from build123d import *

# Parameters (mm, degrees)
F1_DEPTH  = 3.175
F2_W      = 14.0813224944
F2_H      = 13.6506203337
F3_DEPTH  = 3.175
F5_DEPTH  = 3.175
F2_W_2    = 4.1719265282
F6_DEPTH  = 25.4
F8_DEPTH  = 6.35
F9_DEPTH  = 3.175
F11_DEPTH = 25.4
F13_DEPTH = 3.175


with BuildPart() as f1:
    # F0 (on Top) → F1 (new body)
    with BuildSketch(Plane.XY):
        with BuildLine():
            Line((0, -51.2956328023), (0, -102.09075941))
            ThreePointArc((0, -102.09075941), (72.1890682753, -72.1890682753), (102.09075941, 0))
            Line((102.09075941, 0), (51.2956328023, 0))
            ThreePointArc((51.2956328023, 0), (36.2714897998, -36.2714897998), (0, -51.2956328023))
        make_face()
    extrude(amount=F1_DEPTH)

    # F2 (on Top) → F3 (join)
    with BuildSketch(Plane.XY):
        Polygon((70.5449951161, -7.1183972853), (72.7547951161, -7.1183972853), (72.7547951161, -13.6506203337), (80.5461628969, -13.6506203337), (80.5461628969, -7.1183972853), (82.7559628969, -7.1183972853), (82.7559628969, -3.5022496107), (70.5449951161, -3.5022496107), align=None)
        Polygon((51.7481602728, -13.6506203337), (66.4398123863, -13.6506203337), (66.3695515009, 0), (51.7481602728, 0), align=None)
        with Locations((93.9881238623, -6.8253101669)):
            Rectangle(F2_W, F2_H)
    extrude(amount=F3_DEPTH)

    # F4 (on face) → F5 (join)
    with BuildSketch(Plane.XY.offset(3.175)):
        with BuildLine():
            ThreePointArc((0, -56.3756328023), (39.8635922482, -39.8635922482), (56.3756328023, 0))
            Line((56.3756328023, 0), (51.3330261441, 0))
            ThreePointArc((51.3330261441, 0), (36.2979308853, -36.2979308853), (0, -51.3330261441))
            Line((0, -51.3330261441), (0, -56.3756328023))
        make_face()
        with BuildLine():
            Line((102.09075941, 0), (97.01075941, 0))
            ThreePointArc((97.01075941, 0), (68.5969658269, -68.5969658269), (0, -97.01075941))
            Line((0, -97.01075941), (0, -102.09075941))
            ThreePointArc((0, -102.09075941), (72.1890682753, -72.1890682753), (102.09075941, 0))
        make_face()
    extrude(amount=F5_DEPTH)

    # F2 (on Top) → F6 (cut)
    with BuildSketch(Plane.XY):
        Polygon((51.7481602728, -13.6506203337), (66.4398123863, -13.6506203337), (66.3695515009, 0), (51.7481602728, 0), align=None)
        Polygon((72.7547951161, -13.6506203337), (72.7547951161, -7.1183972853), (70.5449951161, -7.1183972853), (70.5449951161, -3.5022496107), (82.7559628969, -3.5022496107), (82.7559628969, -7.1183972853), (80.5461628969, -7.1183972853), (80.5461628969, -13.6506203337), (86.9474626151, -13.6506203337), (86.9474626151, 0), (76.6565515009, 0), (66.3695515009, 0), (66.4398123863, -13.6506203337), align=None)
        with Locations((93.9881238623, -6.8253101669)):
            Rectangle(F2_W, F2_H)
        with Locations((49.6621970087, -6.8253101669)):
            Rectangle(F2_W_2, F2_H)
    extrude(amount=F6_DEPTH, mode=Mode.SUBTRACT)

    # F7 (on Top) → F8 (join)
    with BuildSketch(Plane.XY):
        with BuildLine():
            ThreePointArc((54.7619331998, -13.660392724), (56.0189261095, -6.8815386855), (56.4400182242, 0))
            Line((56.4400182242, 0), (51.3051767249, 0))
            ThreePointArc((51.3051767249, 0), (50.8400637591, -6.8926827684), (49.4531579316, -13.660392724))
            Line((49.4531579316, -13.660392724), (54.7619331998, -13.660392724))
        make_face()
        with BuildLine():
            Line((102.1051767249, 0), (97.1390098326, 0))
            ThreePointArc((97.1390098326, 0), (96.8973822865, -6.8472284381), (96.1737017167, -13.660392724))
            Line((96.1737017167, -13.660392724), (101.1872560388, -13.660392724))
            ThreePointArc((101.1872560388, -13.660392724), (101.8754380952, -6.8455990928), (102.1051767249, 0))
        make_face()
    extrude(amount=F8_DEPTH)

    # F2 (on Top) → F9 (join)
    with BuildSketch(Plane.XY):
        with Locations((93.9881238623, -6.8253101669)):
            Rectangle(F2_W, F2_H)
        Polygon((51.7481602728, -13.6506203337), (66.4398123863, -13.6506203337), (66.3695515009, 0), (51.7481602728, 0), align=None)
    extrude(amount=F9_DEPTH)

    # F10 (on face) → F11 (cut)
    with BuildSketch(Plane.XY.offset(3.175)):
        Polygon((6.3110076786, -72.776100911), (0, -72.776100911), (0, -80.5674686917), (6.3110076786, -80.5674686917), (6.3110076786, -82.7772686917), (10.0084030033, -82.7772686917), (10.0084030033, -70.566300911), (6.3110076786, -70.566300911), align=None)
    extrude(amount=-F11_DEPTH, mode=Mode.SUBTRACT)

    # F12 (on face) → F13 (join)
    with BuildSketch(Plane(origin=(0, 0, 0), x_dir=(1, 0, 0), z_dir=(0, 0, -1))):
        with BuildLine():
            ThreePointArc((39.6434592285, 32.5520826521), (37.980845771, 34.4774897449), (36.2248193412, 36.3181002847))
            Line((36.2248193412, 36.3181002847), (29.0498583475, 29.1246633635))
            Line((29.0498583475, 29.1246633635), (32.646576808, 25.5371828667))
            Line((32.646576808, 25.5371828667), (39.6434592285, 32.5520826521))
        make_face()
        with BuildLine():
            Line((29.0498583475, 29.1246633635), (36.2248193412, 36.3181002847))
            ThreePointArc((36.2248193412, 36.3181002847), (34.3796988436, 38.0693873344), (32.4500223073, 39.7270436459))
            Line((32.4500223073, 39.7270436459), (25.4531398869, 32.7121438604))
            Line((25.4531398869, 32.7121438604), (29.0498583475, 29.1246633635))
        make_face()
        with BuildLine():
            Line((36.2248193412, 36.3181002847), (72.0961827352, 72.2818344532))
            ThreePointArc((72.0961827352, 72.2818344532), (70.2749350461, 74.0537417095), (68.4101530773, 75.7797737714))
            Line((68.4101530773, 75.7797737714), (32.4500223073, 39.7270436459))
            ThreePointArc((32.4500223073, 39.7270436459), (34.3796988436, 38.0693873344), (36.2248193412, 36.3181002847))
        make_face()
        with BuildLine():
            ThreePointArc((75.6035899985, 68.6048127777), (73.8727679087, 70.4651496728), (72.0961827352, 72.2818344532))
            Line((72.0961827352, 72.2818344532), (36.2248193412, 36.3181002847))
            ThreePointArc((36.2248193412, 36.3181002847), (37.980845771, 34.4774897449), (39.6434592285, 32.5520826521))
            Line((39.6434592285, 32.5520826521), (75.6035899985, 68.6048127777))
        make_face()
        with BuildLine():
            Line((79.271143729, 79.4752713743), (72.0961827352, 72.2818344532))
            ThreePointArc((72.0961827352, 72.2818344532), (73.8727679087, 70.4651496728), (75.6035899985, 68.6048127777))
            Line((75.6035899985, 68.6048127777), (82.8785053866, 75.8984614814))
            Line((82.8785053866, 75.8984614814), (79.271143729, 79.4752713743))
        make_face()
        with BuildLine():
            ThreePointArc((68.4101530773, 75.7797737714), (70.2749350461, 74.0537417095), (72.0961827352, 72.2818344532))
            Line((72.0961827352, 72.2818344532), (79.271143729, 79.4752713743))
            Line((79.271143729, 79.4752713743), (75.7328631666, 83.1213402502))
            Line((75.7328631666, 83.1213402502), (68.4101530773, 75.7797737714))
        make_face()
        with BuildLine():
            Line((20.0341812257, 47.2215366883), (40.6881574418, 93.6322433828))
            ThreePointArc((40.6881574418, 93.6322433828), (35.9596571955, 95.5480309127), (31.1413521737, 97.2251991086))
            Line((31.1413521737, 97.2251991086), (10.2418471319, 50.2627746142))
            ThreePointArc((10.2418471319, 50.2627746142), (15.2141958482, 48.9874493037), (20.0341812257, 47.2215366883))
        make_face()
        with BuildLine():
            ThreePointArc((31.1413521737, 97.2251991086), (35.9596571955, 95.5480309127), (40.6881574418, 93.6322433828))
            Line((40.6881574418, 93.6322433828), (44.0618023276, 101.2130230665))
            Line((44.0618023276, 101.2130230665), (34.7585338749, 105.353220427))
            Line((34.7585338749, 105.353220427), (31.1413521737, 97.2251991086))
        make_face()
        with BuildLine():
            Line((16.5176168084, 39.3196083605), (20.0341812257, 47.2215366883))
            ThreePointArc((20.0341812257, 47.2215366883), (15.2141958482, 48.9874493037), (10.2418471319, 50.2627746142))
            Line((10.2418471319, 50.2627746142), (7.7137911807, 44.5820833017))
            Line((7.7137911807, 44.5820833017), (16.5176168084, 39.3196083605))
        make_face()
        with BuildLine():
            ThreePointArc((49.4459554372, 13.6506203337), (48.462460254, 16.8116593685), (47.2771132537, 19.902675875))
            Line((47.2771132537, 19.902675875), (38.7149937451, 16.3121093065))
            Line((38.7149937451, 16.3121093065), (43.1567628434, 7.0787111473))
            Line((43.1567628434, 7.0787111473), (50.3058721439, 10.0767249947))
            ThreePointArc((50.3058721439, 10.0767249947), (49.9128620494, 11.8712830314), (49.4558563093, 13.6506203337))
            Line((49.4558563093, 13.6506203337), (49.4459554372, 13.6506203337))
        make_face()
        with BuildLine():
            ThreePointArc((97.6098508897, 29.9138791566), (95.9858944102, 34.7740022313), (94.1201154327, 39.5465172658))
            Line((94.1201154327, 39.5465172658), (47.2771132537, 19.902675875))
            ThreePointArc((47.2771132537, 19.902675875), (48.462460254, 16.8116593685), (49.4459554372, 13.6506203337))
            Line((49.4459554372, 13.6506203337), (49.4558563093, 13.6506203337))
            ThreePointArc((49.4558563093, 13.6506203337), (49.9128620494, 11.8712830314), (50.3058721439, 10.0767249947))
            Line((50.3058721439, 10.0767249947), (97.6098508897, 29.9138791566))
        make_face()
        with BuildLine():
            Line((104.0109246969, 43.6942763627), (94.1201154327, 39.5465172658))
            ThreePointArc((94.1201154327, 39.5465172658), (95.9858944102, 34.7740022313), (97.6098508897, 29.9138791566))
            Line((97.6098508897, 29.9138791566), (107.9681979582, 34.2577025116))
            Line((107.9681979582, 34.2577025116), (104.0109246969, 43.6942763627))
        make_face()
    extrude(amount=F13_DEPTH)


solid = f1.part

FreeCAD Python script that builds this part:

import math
import FreeCAD as App
import Part
import Sketcher
Q = App.Units.Quantity

doc = App.newDocument("Part")
params = doc.addObject("Spreadsheet::Sheet", "Params")
for row, (alias, value) in enumerate([
    ("pad1_length", "0.125 in"),
    ("sketch2_width", "0.087 in"),
    ("pad2_length", "0.125 in"),
    ("sketch3_width", "0.2 in"),
    ("pad3_length", "0.125 in"),
    ("sketch4_width", "0.087 in"),
    ("pocket1_length", "1 in"),
    ("pad4_length", "0.25 in"),
    ("pad5_length", "0.125 in"),
    ("sketch7_height", "0.087 in"),
    ("pocket2_length", "1 in"),
    ("sketch8_length", "0.4 in"),
    ("pad6_length", "0.125 in"),
], start=1):
    params.set(f"A{row}", alias)
    params.set(f"B{row}", "=" + value)
    params.setAlias(f"B{row}", alias)

body = doc.addObject("PartDesign::Body", "Body")

sketch1 = body.newObject("Sketcher::SketchObject", "Sketch")
sketch1.AttachmentSupport = (doc.getObject("XY_Plane"), [""])
sketch1.MapMode = "FlatFace"
sketch1.addGeometry([
    Part.LineSegment(App.Vector(0, -51.295633, 0), App.Vector(0, -102.090759, 0)),
    Part.ArcOfCircle(Part.Circle(App.Vector(0, 0, 0), App.Vector(0, 0, 1), 102.090759), math.radians(-90), math.radians(0)),
    Part.LineSegment(App.Vector(102.090759, 0, 0), App.Vector(51.295633, 0, 0)),
    Part.ArcOfCircle(Part.Circle(App.Vector(0, 0, 0), App.Vector(0, 0, 1), 51.295633), math.radians(-90), math.radians(0)),
], False)
sketch1.addConstraint([
    Sketcher.Constraint("Coincident", 0, 2, 1, 1),
    Sketcher.Constraint("Coincident", 1, 2, 2, 1),
    Sketcher.Constraint("Coincident", 2, 2, 3, 2),
    Sketcher.Constraint("Coincident", 3, 1, 0, 1),
    Sketcher.Constraint("Vertical", 0),
    Sketcher.Constraint("Horizontal", 2),
    Sketcher.Constraint("Coincident", 1, 3, -1, 1),
    Sketcher.Constraint("Coincident", 3, 3, -1, 1),
    Sketcher.Constraint("PointOnObject", 0, 2, -2),
    Sketcher.Constraint("PointOnObject", 1, 2, -1),
    Sketcher.Constraint("Radius", 1, 102.090759),
    Sketcher.Constraint("Radius", 3, 51.295633),
])
pad1 = body.newObject("PartDesign::Pad", "Pad")
pad1.Profile = sketch1
pad1.setExpression("Length", "Params.pad1_length")

sketch2 = body.newObject("Sketcher::SketchObject", "Sketch001")
sketch2.AttachmentSupport = (doc.getObject("XY_Plane"), [""])
sketch2.MapMode = "FlatFace"
sketch2.addGeometry([
    Part.LineSegment(App.Vector(70.544995, -7.118397, 0), App.Vector(72.754795, -7.118397, 0)),
    Part.LineSegment(App.Vector(72.754795, -7.118397, 0), App.Vector(72.754795, -13.65062, 0)),
    Part.LineSegment(App.Vector(72.754795, -13.65062, 0), App.Vector(80.546163, -13.65062, 0)),
    Part.LineSegment(App.Vector(80.546163, -13.65062, 0), App.Vector(80.546163, -7.118397, 0)),
    Part.LineSegment(App.Vector(80.546163, -7.118397, 0), App.Vector(82.755963, -7.118397, 0)),
    Part.LineSegment(App.Vector(82.755963, -7.118397, 0), App.Vector(82.755963, -3.50225, 0)),
    Part.LineSegment(App.Vector(82.755963, -3.50225, 0), App.Vector(70.544995, -3.50225, 0)),
    Part.LineSegment(App.Vector(70.544995, -3.50225, 0), App.Vector(70.544995, -7.118397, 0)),
    Part.LineSegment(App.Vector(51.74816, -13.65062, 0), App.Vector(66.439812, -13.65062, 0)),
    Part.LineSegment(App.Vector(66.439812, -13.65062, 0), App.Vector(66.369552, 0, 0)),
    Part.LineSegment(App.Vector(66.369552, 0, 0), App.Vector(51.74816, 0, 0)),
    Part.LineSegment(App.Vector(51.74816, 0, 0), App.Vector(51.74816, -13.65062, 0)),
    Part.LineSegment(App.Vector(86.947463, 0, 0), App.Vector(86.947463, -13.65062, 0)),
    Part.LineSegment(App.Vector(86.947463, -13.65062, 0), App.Vector(101.028785, -13.65062, 0)),
    Part.LineSegment(App.Vector(101.028785, -13.65062, 0), App.Vector(101.028785, 0, 0)),
    Part.LineSegment(App.Vector(101.028785, 0, 0), App.Vector(86.947463, 0, 0)),
], False)
sketch2.addConstraint([
    Sketcher.Constraint("Coincident", 0, 2, 1, 1),
    Sketcher.Constraint("Coincident", 1, 2, 2, 1),
    Sketcher.Constraint("Coincident", 2, 2, 3, 1),
    Sketcher.Constraint("Coincident", 3, 2, 4, 1),
    Sketcher.Constraint("Coincident", 4, 2, 5, 1),
    Sketcher.Constraint("Coincident", 5, 2, 6, 1),
    Sketcher.Constraint("Coincident", 6, 2, 7, 1),
    Sketcher.Constraint("Coincident", 7, 2, 0, 1),
    Sketcher.Constraint("Coincident", 8, 2, 9, 1),
    Sketcher.Constraint("Coincident", 9, 2, 10, 1),
    Sketcher.Constraint("Coincident", 10, 2, 11, 1),
    Sketcher.Constraint("Coincident", 11, 2, 8, 1),
    Sketcher.Constraint("Coincident", 12, 2, 13, 1),
    Sketcher.Constraint("Coincident", 13, 2, 14, 1),
    Sketcher.Constraint("Coincident", 14, 2, 15, 1),
    Sketcher.Constraint("Coincident", 15, 2, 12, 1),
    Sketcher.Constraint("Horizontal", 0),
    Sketcher.Constraint("Vertical", 1),
    Sketcher.Constraint("Horizontal", 2),
    Sketcher.Constraint("Vertical", 3),
    Sketcher.Constraint("Horizontal", 4),
    Sketcher.Constraint("Vertical", 5),
    Sketcher.Constraint("Horizontal", 6),
    Sketcher.Constraint("Vertical", 7),
    Sketcher.Constraint("Horizontal", 8),
    Sketcher.Constraint("Horizontal", 10),
    Sketcher.Constraint("Vertical", 11),
    Sketcher.Constraint("Vertical", 12),
    Sketcher.Constraint("Horizontal", 13),
    Sketcher.Constraint("Vertical", 14),
    Sketcher.Constraint("Horizontal", 15),
    Sketcher.Constraint("PointOnObject", 9, 2, -1),
    Sketcher.Constraint("PointOnObject", 14, 2, -1),
    Sketcher.Constraint("Horizontal", 0, 2, 3, 2),
    Sketcher.Constraint("Horizontal", 2, 2, 8, 2),
    Sketcher.Constraint("Horizontal", 11, 2, 12, 2),
    Sketcher.Constraint("Equal", 0, 4),
    Sketcher.Constraint("DistanceX", 0, 1, 0, 2, Q("0.087 in")),
    Sketcher.Constraint("Distance", 9, 13.650801),
    Sketcher.Constraint("DistanceX", 10, 2, 10, 1, 14.621391),
    Sketcher.Constraint("DistanceY", 11, 2, 11, 1, 13.65062),
    Sketcher.Constraint("DistanceX", 2, 2, 12, 2, 6.4013),
    Sketcher.Constraint("DistanceX", 2, 1, 2, 2, 7.791368),
    Sketcher.Constraint("DistanceX", 13, 1, 13, 2, 14.081322),
    Sketcher.Constraint("DistanceY", 1, 2, 1, 1, 6.532223),
    Sketcher.Constraint("DistanceY", 5, 1, 5, 2, 3.616148),
    Sketcher.Constraint("DistanceX", -1, 1, 9, 2, 66.369552),
    Sketcher.Constraint("DistanceX", 8, 2, 2, 2, 14.106351),
])
sketch2.setExpression("Constraints[37]", "Params.sketch2_width")
pad2 = body.newObject("PartDesign::Pad", "Pad001")
pad2.Profile = sketch2
pad2.setExpression("Length", "Params.pad2_length")

sketch3 = body.newObject("Sketcher::SketchObject", "Sketch002")
sketch3.AttachmentSupport = (doc.getObject("XY_Plane"), [""])
sketch3.MapMode = "FlatFace"
sketch3.AttachmentOffset = App.Placement(App.Vector(0, 0, 0.125 * 25.4), App.Rotation())
sketch3.addGeometry([
    Part.ArcOfCircle(Part.Circle(App.Vector(0, 0, 0), App.Vector(0, 0, 1), 56.375633), math.radians(-90), math.radians(0)),
    Part.LineSegment(App.Vector(56.375633, 0, 0), App.Vector(51.333026, 0, 0)),
    Part.ArcOfCircle(Part.Circle(App.Vector(0, 0, 0), App.Vector(0, 0, 1), 51.333026), math.radians(-90), math.radians(0)),
    Part.LineSegment(App.Vector(0, -51.333026, 0), App.Vector(0, -56.375633, 0)),
    Part.LineSegment(App.Vector(102.090759, 0, 0), App.Vector(97.010759, 0, 0)),
    Part.ArcOfCircle(Part.Circle(App.Vector(0, 0, 0), App.Vector(0, 0, 1), 97.010759), math.radians(-90), math.radians(0)),
    Part.LineSegment(App.Vector(0, -97.010759, 0), App.Vector(0, -102.090759, 0)),
    Part.ArcOfCircle(Part.Circle(App.Vector(0, 0, 0), App.Vector(0, 0, 1), 102.090759), math.radians(-90), math.radians(0)),
], False)
sketch3.addConstraint([
    Sketcher.Constraint("Coincident", 0, 2, 1, 1),
    Sketcher.Constraint("Coincident", 1, 2, 2, 2),
    Sketcher.Constraint("Coincident", 2, 1, 3, 1),
    Sketcher.Constraint("Coincident", 3, 2, 0, 1),
    Sketcher.Constraint("Coincident", 4, 2, 5, 2),
    Sketcher.Constraint("Coincident", 5, 1, 6, 1),
    Sketcher.Constraint("Coincident", 6, 2, 7, 1),
    Sketcher.Constraint("Coincident", 7, 2, 4, 1),
    Sketcher.Constraint("Horizontal", 1),
    Sketcher.Constraint("Vertical", 3),
    Sketcher.Constraint("Horizontal", 4),
    Sketcher.Constraint("Vertical", 6),
    Sketcher.Constraint("Coincident", 0, 3, -1, 1),
    Sketcher.Constraint("Coincident", 2, 3, -1, 1),
    Sketcher.Constraint("Coincident", 5, 3, -1, 1),
    Sketcher.Constraint("Coincident", 7, 3, -1, 1),
    Sketcher.Constraint("PointOnObject", 0, 2, -1),
    Sketcher.Constraint("PointOnObject", 2, 1, -2),
    Sketcher.Constraint("PointOnObject", 4, 2, -1),
    Sketcher.Constraint("PointOnObject", 5, 1, -2),
    Sketcher.Constraint("DistanceX", 4, 2, 4, 1, Q("0.2 in")),
    Sketcher.Constraint("Radius", 5, 97.010759),
    Sketcher.Constraint("Radius", 0, 56.375633),
    Sketcher.Constraint("Radius", 2, 51.333026),
])
sketch3.setExpression("Constraints[20]", "Params.sketch3_width")
pad3 = body.newObject("PartDesign::Pad", "Pad002")
pad3.Profile = sketch3
pad3.setExpression("Length", "Params.pad3_length")

sketch4 = body.newObject("Sketcher::SketchObject", "Sketch003")
sketch4.AttachmentSupport = (doc.getObject("XY_Plane"), [""])
sketch4.MapMode = "FlatFace"
sketch4.addGeometry([
    Part.LineSegment(App.Vector(51.74816, -13.65062, 0), App.Vector(72.754795, -13.65062, 0)),
    Part.LineSegment(App.Vector(72.754795, -13.65062, 0), App.Vector(72.754795, -7.118397, 0)),
    Part.LineSegment(App.Vector(72.754795, -7.118397, 0), App.Vector(70.544995, -7.118397, 0)),
    Part.LineSegment(App.Vector(70.544995, -7.118397, 0), App.Vector(70.544995, -3.50225, 0)),
    Part.LineSegment(App.Vector(70.544995, -3.50225, 0), App.Vector(82.755963, -3.50225, 0)),
    Part.LineSegment(App.Vector(82.755963, -3.50225, 0), App.Vector(82.755963, -7.118397, 0)),
    Part.LineSegment(App.Vector(82.755963, -7.118397, 0), App.Vector(80.546163, -7.118397, 0)),
    Part.LineSegment(App.Vector(80.546163, -7.118397, 0), App.Vector(80.546163, -13.65062, 0)),
    Part.LineSegment(App.Vector(80.546163, -13.65062, 0), App.Vector(86.947463, -13.65062, 0)),
    Part.LineSegment(App.Vector(86.947463, -13.65062, 0), App.Vector(101.028785, -13.65062, 0)),
    Part.LineSegment(App.Vector(101.028785, -13.65062, 0), App.Vector(101.028785, 0, 0)),
    Part.LineSegment(App.Vector(101.028785, 0, 0), App.Vector(86.947463, 0, 0)),
    Part.LineSegment(App.Vector(86.947463, 0, 0), App.Vector(51.74816, 0, 0)),
    Part.LineSegment(App.Vector(51.74816, 0, 0), App.Vector(47.576234, 0, 0)),
    Part.LineSegment(App.Vector(47.576234, 0, 0), App.Vector(47.576234, -13.65062, 0)),
    Part.LineSegment(App.Vector(47.576234, -13.65062, 0), App.Vector(51.74816, -13.65062, 0)),
], False)
sketch4.addConstraint([
    Sketcher.Constraint("Coincident", 0, 2, 1, 1),
    Sketcher.Constraint("Coincident", 1, 2, 2, 1),
    Sketcher.Constraint("Coincident", 2, 2, 3, 1),
    Sketcher.Constraint("Coincident", 3, 2, 4, 1),
    Sketcher.Constraint("Coincident", 4, 2, 5, 1),
    Sketcher.Constraint("Coincident", 5, 2, 6, 1),
    Sketcher.Constraint("Coincident", 6, 2, 7, 1),
    Sketcher.Constraint("Coincident", 7, 2, 8, 1),
    Sketcher.Constraint("Coincident", 8, 2, 9, 1),
    Sketcher.Constraint("Coincident", 9, 2, 10, 1),
    Sketcher.Constraint("Coincident", 10, 2, 11, 1),
    Sketcher.Constraint("Coincident", 11, 2, 12, 1),
    Sketcher.Constraint("Coincident", 12, 2, 13, 1),
    Sketcher.Constraint("Coincident", 13, 2, 14, 1),
    Sketcher.Constraint("Coincident", 14, 2, 15, 1),
    Sketcher.Constraint("Coincident", 15, 2, 0, 1),
    Sketcher.Constraint("Horizontal", 0),
    Sketcher.Constraint("Vertical", 1),
    Sketcher.Constraint("Horizontal", 2),
    Sketcher.Constraint("Vertical", 3),
    Sketcher.Constraint("Horizontal", 4),
    Sketcher.Constraint("Vertical", 5),
    Sketcher.Constraint("Horizontal", 6),
    Sketcher.Constraint("Vertical", 7),
    Sketcher.Constraint("Horizontal", 8),
    Sketcher.Constraint("Horizontal", 9),
    Sketcher.Constraint("Vertical", 10),
    Sketcher.Constraint("Horizontal", 11),
    Sketcher.Constraint("Horizontal", 12),
    Sketcher.Constraint("Horizontal", 13),
    Sketcher.Constraint("Vertical", 14),
    Sketcher.Constraint("Horizontal", 15),
    Sketcher.Constraint("PointOnObject", 10, 2, -1),
    Sketcher.Constraint("Horizontal", 2, 2, 5, 2),
    Sketcher.Constraint("Horizontal", 0, 2, 7, 2),
    Sketcher.Constraint("Vertical", 8, 2, 11, 2),
    Sketcher.Constraint("Vertical", 12, 2, 15, 2),
    Sketcher.Constraint("Equal", 2, 6),
    Sketcher.Constraint("DistanceX", 2, 2, 2, 1, Q("0.087 in")),
    Sketcher.Constraint("DistanceX", 8, 1, 8, 2, 6.4013),
    Sketcher.Constraint("DistanceY", 10, 1, 10, 2, 13.65062),
    Sketcher.Constraint("DistanceX", 0, 1, 0, 2, 21.006635),
    Sketcher.Constraint("DistanceX", 4, 1, 4, 2, 12.210968),
    Sketcher.Constraint("DistanceX", 9, 1, 9, 2, 14.081322),
    Sketcher.Constraint("DistanceX", 13, 2, 13, 1, 4.171927),
    Sketcher.Constraint("DistanceY", 1, 1, 1, 2, 6.532223),
    Sketcher.Constraint("DistanceY", 3, 1, 3, 2, 3.616148),
    Sketcher.Constraint("DistanceX", -1, 1, 12, 2, 51.74816),
])
sketch4.setExpression("Constraints[38]", "Params.sketch4_width")
pocket1 = body.newObject("PartDesign::Pocket", "Pocket")
pocket1.Profile = sketch4
pocket1.setExpression("Length", "Params.pocket1_length")
pocket1.Reversed = True

sketch5 = body.newObject("Sketcher::SketchObject", "Sketch004")
sketch5.AttachmentSupport = (doc.getObject("XY_Plane"), [""])
sketch5.MapMode = "FlatFace"
sketch5.addGeometry([
    Part.ArcOfCircle(Part.Circle(App.Vector(0, 0, 0), App.Vector(0, 0, 1), 56.440018), math.radians(-14.006609), math.radians(0)),
    Part.LineSegment(App.Vector(56.440018, 0, 0), App.Vector(51.305177, 0, 0)),
    Part.ArcOfCircle(Part.Circle(App.Vector(0, 0, 0), App.Vector(0, 0, 1), 51.305177), math.radians(-15.441692), math.radians(0)),
    Part.LineSegment(App.Vector(49.453158, -13.660393, 0), App.Vector(54.761933, -13.660393, 0)),
    Part.LineSegment(App.Vector(102.105177, 0, 0), App.Vector(97.13901, 0, 0)),
    Part.ArcOfCircle(Part.Circle(App.Vector(0, 0, 0), App.Vector(0, 0, 1), 97.13901), math.radians(-8.084145), math.radians(0)),
    Part.LineSegment(App.Vector(96.173702, -13.660393, 0), App.Vector(101.187256, -13.660393, 0)),
    Part.ArcOfCircle(Part.Circle(App.Vector(0, 0, 0), App.Vector(0, 0, 1), 102.105177), math.radians(-7.688511), math.radians(0)),
], False)
sketch5.addConstraint([
    Sketcher.Constraint("Coincident", 0, 2, 1, 1),
    Sketcher.Constraint("Coincident", 1, 2, 2, 2),
    Sketcher.Constraint("Coincident", 2, 1, 3, 1),
    Sketcher.Constraint("Coincident", 3, 2, 0, 1),
    Sketcher.Constraint("Coincident", 4, 2, 5, 2),
    Sketcher.Constraint("Coincident", 5, 1, 6, 1),
    Sketcher.Constraint("Coincident", 6, 2, 7, 1),
    Sketcher.Constraint("Coincident", 7, 2, 4, 1),
    Sketcher.Constraint("Horizontal", 1),
    Sketcher.Constraint("Horizontal", 3),
    Sketcher.Constraint("Horizontal", 4),
    Sketcher.Constraint("Horizontal", 6),
    Sketcher.Constraint("Coincident", 0, 3, -1, 1),
    Sketcher.Constraint("Coincident", 2, 3, -1, 1),
    Sketcher.Constraint("Coincident", 5, 3, -1, 1),
    Sketcher.Constraint("Coincident", 7, 3, -1, 1),
    Sketcher.Constraint("PointOnObject", 0, 2, -1),
    Sketcher.Constraint("PointOnObject", 4, 2, -1),
    Sketcher.Constraint("Horizontal", 3, 2, 5, 1),
    Sketcher.Constraint("Radius", 0, 56.440018),
    Sketcher.Constraint("Radius", 5, 97.13901),
    Sketcher.Constraint("Radius", 2, 51.305177),
    Sketcher.Constraint("Radius", 7, 102.105177),
    Sketcher.Constraint("DistanceX", -1, 1, 5, 1, 96.173702),
])
pad4 = body.newObject("PartDesign::Pad", "Pad003")
pad4.Profile = sketch5
pad4.setExpression("Length", "Params.pad4_length")

sketch6 = body.newObject("Sketcher::SketchObject", "Sketch005")
sketch6.AttachmentSupport = (doc.getObject("XY_Plane"), [""])
sketch6.MapMode = "FlatFace"
sketch6.addGeometry([
    Part.LineSegment(App.Vector(86.947463, 0, 0), App.Vector(86.947463, -13.65062, 0)),
    Part.LineSegment(App.Vector(86.947463, -13.65062, 0), App.Vector(101.028785, -13.65062, 0)),
    Part.LineSegment(App.Vector(101.028785, -13.65062, 0), App.Vector(101.028785, 0, 0)),
    Part.LineSegment(App.Vector(101.028785, 0, 0), App.Vector(86.947463, 0, 0)),
    Part.LineSegment(App.Vector(51.74816, -13.65062, 0), App.Vector(66.439812, -13.65062, 0)),
    Part.LineSegment(App.Vector(66.439812, -13.65062, 0), App.Vector(66.369552, 0, 0)),
    Part.LineSegment(App.Vector(66.369552, 0, 0), App.Vector(51.74816, 0, 0)),
    Part.LineSegment(App.Vector(51.74816, 0, 0), App.Vector(51.74816, -13.65062, 0)),
], False)
sketch6.addConstraint([
    Sketcher.Constraint("Coincident", 0, 2, 1, 1),
    Sketcher.Constraint("Coincident", 1, 2, 2, 1),
    Sketcher.Constraint("Coincident", 2, 2, 3, 1),
    Sketcher.Constraint("Coincident", 3, 2, 0, 1),
    Sketcher.Constraint("Coincident", 4, 2, 5, 1),
    Sketcher.Constraint("Coincident", 5, 2, 6, 1),
    Sketcher.Constraint("Coincident", 6, 2, 7, 1),
    Sketcher.Constraint("Coincident", 7, 2, 4, 1),
    Sketcher.Constraint("Vertical", 0),
    Sketcher.Constraint("Horizontal", 1),
    Sketcher.Constraint("Vertical", 2),
    Sketcher.Constraint("Horizontal", 3),
    Sketcher.Constraint("Horizontal", 4),
    Sketcher.Constraint("Horizontal", 6),
    Sketcher.Constraint("Vertical", 7),
    Sketcher.Constraint("PointOnObject", 2, 2, -1),
    Sketcher.Constraint("PointOnObject", 5, 2, -1),
    Sketcher.Constraint("Horizontal", 1, 2, 4, 2),
    Sketcher.Constraint("Distance", 5, 13.650801),
    Sketcher.Constraint("DistanceX", 6, 2, 6, 1, 14.621391),
    Sketcher.Constraint("DistanceY", 0, 2, 0, 1, 13.65062),
    Sketcher.Constraint("DistanceX", 1, 1, 1, 2, 14.081322),
    Sketcher.Constraint("DistanceX", -1, 1, 5, 2, 66.369552),
    Sketcher.Constraint("DistanceX", 4, 2, 0, 2, 20.50765),
])
pad5 = body.newObject("PartDesign::Pad", "Pad004")
pad5.Profile = sketch6
pad5.setExpression("Length", "Params.pad5_length")

sketch7 = body.newObject("Sketcher::SketchObject", "Sketch006")
sketch7.AttachmentSupport = (doc.getObject("XY_Plane"), [""])
sketch7.MapMode = "FlatFace"
sketch7.AttachmentOffset = App.Placement(App.Vector(0, 0, 0.125 * 25.4), App.Rotation())
sketch7.addGeometry([
    Part.LineSegment(App.Vector(6.311008, -72.776101, 0), App.Vector(0, -72.776101, 0)),
    Part.LineSegment(App.Vector(0, -72.776101, 0), App.Vector(0, -80.567469, 0)),
    Part.LineSegment(App.Vector(0, -80.567469, 0), App.Vector(6.311008, -80.567469, 0)),
    Part.LineSegment(App.Vector(6.311008, -80.567469, 0), App.Vector(6.311008, -82.777269, 0)),
    Part.LineSegment(App.Vector(6.311008, -82.777269, 0), App.Vector(10.008403, -82.777269, 0)),
    Part.LineSegment(App.Vector(10.008403, -82.777269, 0), App.Vector(10.008403, -70.566301, 0)),
    Part.LineSegment(App.Vector(10.008403, -70.566301, 0), App.Vector(6.311008, -70.566301, 0)),
    Part.LineSegment(App.Vector(6.311008, -70.566301, 0), App.Vector(6.311008, -72.776101, 0)),
], False)
sketch7.addConstraint([
    Sketcher.Constraint("Coincident", 0, 2, 1, 1),
    Sketcher.Constraint("Coincident", 1, 2, 2, 1),
    Sketcher.Constraint("Coincident", 2, 2, 3, 1),
    Sketcher.Constraint("Coincident", 3, 2, 4, 1),
    Sketcher.Constraint("Coincident", 4, 2, 5, 1),
    Sketcher.Constraint("Coincident", 5, 2, 6, 1),
    Sketcher.Constraint("Coincident", 6, 2, 7, 1),
    Sketcher.Constraint("Coincident", 7, 2, 0, 1),
    Sketcher.Constraint("Horizontal", 0),
    Sketcher.Constraint("Vertical", 1),
    Sketcher.Constraint("Horizontal", 2),
    Sketcher.Constraint("Vertical", 3),
    Sketcher.Constraint("Horizontal", 4),
    Sketcher.Constraint("Vertical", 5),
    Sketcher.Constraint("Horizontal", 6),
    Sketcher.Constraint("Vertical", 7),
    Sketcher.Constraint("PointOnObject", 0, 2, -2),
    Sketcher.Constraint("Vertical", 3, 2, 6, 2),
    Sketcher.Constraint("Equal", 3, 7),
    Sketcher.Constraint("DistanceY", 3, 2, 3, 1, Q("0.087 in")),
    Sketcher.Constraint("DistanceY", 0, 2, -1, 1, 72.776101),
    Sketcher.Constraint("DistanceX", 0, 2, 0, 1, 6.311008),
    Sketcher.Constraint("DistanceX", 4, 1, 4, 2, 3.697395),
    Sketcher.Constraint("DistanceY", 1, 2, 1, 1, 7.791368),
])
sketch7.setExpression("Constraints[19]", "Params.sketch7_height")
pocket2 = body.newObject("PartDesign::Pocket", "Pocket001")
pocket2.Profile = sketch7
pocket2.setExpression("Length", "Params.pocket2_length")

sketch8 = body.newObject("Sketcher::SketchObject", "Sketch007")
sketch8.AttachmentSupport = (doc.getObject("XY_Plane"), [""])
sketch8.MapMode = "FlatFace"
sketch8.addGeometry([
    Part.LineSegment(App.Vector(68.410153, -75.779774, 0), App.Vector(32.450022, -39.727044, 0)),
    Part.LineSegment(App.Vector(32.450022, -39.727044, 0), App.Vector(25.45314, -32.712144, 0)),
    Part.LineSegment(App.Vector(25.45314, -32.712144, 0), App.Vector(32.646577, -25.537183, 0)),
    Part.LineSegment(App.Vector(32.646577, -25.537183, 0), App.Vector(39.643459, -32.552083, 0)),
    Part.LineSegment(App.Vector(39.643459, -32.552083, 0), App.Vector(75.60359, -68.604813, 0)),
    Part.LineSegment(App.Vector(75.60359, -68.604813, 0), App.Vector(82.878505, -75.898461, 0)),
    Part.LineSegment(App.Vector(82.878505, -75.898461, 0), App.Vector(79.271144, -79.475271, 0)),
    Part.LineSegment(App.Vector(79.271144, -79.475271, 0), App.Vector(75.732863, -83.12134, 0)),
    Part.LineSegment(App.Vector(75.732863, -83.12134, 0), App.Vector(68.410153, -75.779774, 0)),
    Part.LineSegment(App.Vector(44.061802, -101.213023, 0), App.Vector(34.758534, -105.35322, 0)),
    Part.LineSegment(App.Vector(34.758534, -105.35322, 0), App.Vector(31.141352, -97.225199, 0)),
    Part.LineSegment(App.Vector(31.141352, -97.225199, 0), App.Vector(10.241847, -50.262775, 0)),
    Part.LineSegment(App.Vector(10.241847, -50.262775, 0), App.Vector(7.713791, -44.582083, 0)),
    Part.LineSegment(App.Vector(7.713791, -44.582083, 0), App.Vector(16.517617, -39.319608, 0)),
    Part.LineSegment(App.Vector(16.517617, -39.319608, 0), App.Vector(44.061802, -101.213023, 0)),
    Part.LineSegment(App.Vector(47.277113, -19.902676, 0), App.Vector(38.714994, -16.312109, 0)),
    Part.LineSegment(App.Vector(38.714994, -16.312109, 0), App.Vector(43.156763, -7.078711, 0)),
    Part.LineSegment(App.Vector(43.156763, -7.078711, 0), App.Vector(50.305872, -10.076725, 0)),
    Part.LineSegment(App.Vector(50.305872, -10.076725, 0), App.Vector(107.968198, -34.257703, 0)),
    Part.LineSegment(App.Vector(107.968198, -34.257703, 0), App.Vector(104.010925, -43.694276, 0)),
    Part.LineSegment(App.Vector(104.010925, -43.694276, 0), App.Vector(94.120115, -39.546517, 0)),
    Part.LineSegment(App.Vector(94.120115, -39.546517, 0), App.Vector(47.277113, -19.902676, 0)),
], False)
sketch8.addConstraint([
    Sketcher.Constraint("Coincident", 0, 2, 1, 1),
    Sketcher.Constraint("Coincident", 1, 2, 2, 1),
    Sketcher.Constraint("Coincident", 2, 2, 3, 1),
    Sketcher.Constraint("Coincident", 3, 2, 4, 1),
    Sketcher.Constraint("Coincident", 4, 2, 5, 1),
    Sketcher.Constraint("Coincident", 5, 2, 6, 1),
    Sketcher.Constraint("Coincident", 6, 2, 7, 1),
    Sketcher.Constraint("Coincident", 7, 2, 8, 1),
    Sketcher.Constraint("Coincident", 8, 2, 0, 1),
    Sketcher.Constraint("Coincident", 9, 2, 10, 1),
    Sketcher.Constraint("Coincident", 10, 2, 11, 1),
    Sketcher.Constraint("Coincident", 11, 2, 12, 1),
    Sketcher.Constraint("Coincident", 12, 2, 13, 1),
    Sketcher.Constraint("Coincident", 13, 2, 14, 1),
    Sketcher.Constraint("Coincident", 14, 2, 9, 1),
    Sketcher.Constraint("Coincident", 15, 2, 16, 1),
    Sketcher.Constraint("Coincident", 16, 2, 17, 1),
    Sketcher.Constraint("Coincident", 17, 2, 18, 1),
    Sketcher.Constraint("Coincident", 18, 2, 19, 1),
    Sketcher.Constraint("Coincident", 19, 2, 20, 1),
    Sketcher.Constraint("Coincident", 20, 2, 21, 1),
    Sketcher.Constraint("Coincident", 21, 2, 15, 1),
    Sketcher.Constraint("Parallel", 0, 1),
    Sketcher.Constraint("Perpendicular", 1, 2),
    Sketcher.Constraint("Perpendicular", 2, 3),
    Sketcher.Constraint("Parallel", 3, 4),
    Sketcher.Constraint("Parallel", 4, 5),
    Sketcher.Constraint("Parallel", 5, 8),
    Sketcher.Constraint("Perpendicular", 9, 10),
    Sketcher.Constraint("Parallel", 10, 11),
    Sketcher.Constraint("Parallel", 11, 12),
    Sketcher.Constraint("Parallel", 12, 14),
    Sketcher.Constraint("Parallel", 15, 17),
    Sketcher.Constraint("Parallel", 17, 18),
    Sketcher.Constraint("Perpendicular", 18, 19),
    Sketcher.Constraint("Perpendicular", 19, 20),
    Sketcher.Constraint("Parallel", 20, 21),
    Sketcher.Constraint("Equal", 1, 3),
    Sketcher.Constraint("Equal", 0, 4),
    Sketcher.Constraint("Distance", 2, Q("0.4 in")),
    Sketcher.Constraint("DistanceY", 9, 2, 14, 2, Q("0.1629999 in")),
    Sketcher.Constraint("DistanceY", 12, 2, -1, 1, Q("1.7552001 in")),
    Sketcher.Constraint("DistanceX", -1, 1, 13, 2, Q("0.6502999 in")),
    Sketcher.Constraint("DistanceY", 5, 2, 18, 2, Q("1.6394 in")),
    Sketcher.Constraint("DistanceX", 20, 2, 18, 2, Q("0.5452001 in")),
    Sketcher.Constraint("Distance", 18, 62.527302),
    Sketcher.Constraint("DistanceY", 10, 2, -1, 1, 97.225199),
    Sketcher.Constraint("DistanceY", 0, 2, 1, 2, 7.0149),
    Sketcher.Constraint("DistanceX", 10, 2, 8, 2, 37.268801),
    Sketcher.Constraint("DistanceY", 12, 2, 2, 2, 19.0449),
    Sketcher.Constraint("DistanceY", 13, 2, 15, 2, 23.007499),
    Sketcher.Constraint("DistanceY", 15, 2, 16, 2, 9.233398),
    Sketcher.Constraint("Distance", 5, 10.301539),
    Sketcher.Constraint("Distance", 9, 10.182929),
    Sketcher.Constraint("Distance", 14, 67.745678),
    Sketcher.Constraint("Distance", 17, 7.75228),
    Sketcher.Constraint("Distance", 19, 10.232739),
    Sketcher.Constraint("Distance", 21, 50.795151),
    Sketcher.Constraint("DistanceX", -1, 1, 1, 2, 25.45314),
    Sketcher.Constraint("DistanceX", -1, 1, 3, 2, 39.643459),
    Sketcher.Constraint("DistanceX", -1, 1, 4, 2, 75.60359),
    Sketcher.Constraint("DistanceY", 6, 2, -1, 1, 79.475271),
    Sketcher.Constraint("DistanceY", 7, 2, -1, 1, 83.12134),
    Sketcher.Constraint("DistanceX", 6, 2, 5, 2, 3.607362),
    Sketcher.Constraint("DistanceY", 11, 2, 1, 2, 17.550631),
    Sketcher.Constraint("DistanceX", 0, 2, 15, 2, 6.264971),
])
sketch8.setExpression("Constraints[39]", "Params.sketch8_length")
pad6 = body.newObject("PartDesign::Pad", "Pad005")
pad6.Profile = sketch8
pad6.setExpression("Length", "Params.pad6_length")
pad6.Reversed = True

doc.recompute()
